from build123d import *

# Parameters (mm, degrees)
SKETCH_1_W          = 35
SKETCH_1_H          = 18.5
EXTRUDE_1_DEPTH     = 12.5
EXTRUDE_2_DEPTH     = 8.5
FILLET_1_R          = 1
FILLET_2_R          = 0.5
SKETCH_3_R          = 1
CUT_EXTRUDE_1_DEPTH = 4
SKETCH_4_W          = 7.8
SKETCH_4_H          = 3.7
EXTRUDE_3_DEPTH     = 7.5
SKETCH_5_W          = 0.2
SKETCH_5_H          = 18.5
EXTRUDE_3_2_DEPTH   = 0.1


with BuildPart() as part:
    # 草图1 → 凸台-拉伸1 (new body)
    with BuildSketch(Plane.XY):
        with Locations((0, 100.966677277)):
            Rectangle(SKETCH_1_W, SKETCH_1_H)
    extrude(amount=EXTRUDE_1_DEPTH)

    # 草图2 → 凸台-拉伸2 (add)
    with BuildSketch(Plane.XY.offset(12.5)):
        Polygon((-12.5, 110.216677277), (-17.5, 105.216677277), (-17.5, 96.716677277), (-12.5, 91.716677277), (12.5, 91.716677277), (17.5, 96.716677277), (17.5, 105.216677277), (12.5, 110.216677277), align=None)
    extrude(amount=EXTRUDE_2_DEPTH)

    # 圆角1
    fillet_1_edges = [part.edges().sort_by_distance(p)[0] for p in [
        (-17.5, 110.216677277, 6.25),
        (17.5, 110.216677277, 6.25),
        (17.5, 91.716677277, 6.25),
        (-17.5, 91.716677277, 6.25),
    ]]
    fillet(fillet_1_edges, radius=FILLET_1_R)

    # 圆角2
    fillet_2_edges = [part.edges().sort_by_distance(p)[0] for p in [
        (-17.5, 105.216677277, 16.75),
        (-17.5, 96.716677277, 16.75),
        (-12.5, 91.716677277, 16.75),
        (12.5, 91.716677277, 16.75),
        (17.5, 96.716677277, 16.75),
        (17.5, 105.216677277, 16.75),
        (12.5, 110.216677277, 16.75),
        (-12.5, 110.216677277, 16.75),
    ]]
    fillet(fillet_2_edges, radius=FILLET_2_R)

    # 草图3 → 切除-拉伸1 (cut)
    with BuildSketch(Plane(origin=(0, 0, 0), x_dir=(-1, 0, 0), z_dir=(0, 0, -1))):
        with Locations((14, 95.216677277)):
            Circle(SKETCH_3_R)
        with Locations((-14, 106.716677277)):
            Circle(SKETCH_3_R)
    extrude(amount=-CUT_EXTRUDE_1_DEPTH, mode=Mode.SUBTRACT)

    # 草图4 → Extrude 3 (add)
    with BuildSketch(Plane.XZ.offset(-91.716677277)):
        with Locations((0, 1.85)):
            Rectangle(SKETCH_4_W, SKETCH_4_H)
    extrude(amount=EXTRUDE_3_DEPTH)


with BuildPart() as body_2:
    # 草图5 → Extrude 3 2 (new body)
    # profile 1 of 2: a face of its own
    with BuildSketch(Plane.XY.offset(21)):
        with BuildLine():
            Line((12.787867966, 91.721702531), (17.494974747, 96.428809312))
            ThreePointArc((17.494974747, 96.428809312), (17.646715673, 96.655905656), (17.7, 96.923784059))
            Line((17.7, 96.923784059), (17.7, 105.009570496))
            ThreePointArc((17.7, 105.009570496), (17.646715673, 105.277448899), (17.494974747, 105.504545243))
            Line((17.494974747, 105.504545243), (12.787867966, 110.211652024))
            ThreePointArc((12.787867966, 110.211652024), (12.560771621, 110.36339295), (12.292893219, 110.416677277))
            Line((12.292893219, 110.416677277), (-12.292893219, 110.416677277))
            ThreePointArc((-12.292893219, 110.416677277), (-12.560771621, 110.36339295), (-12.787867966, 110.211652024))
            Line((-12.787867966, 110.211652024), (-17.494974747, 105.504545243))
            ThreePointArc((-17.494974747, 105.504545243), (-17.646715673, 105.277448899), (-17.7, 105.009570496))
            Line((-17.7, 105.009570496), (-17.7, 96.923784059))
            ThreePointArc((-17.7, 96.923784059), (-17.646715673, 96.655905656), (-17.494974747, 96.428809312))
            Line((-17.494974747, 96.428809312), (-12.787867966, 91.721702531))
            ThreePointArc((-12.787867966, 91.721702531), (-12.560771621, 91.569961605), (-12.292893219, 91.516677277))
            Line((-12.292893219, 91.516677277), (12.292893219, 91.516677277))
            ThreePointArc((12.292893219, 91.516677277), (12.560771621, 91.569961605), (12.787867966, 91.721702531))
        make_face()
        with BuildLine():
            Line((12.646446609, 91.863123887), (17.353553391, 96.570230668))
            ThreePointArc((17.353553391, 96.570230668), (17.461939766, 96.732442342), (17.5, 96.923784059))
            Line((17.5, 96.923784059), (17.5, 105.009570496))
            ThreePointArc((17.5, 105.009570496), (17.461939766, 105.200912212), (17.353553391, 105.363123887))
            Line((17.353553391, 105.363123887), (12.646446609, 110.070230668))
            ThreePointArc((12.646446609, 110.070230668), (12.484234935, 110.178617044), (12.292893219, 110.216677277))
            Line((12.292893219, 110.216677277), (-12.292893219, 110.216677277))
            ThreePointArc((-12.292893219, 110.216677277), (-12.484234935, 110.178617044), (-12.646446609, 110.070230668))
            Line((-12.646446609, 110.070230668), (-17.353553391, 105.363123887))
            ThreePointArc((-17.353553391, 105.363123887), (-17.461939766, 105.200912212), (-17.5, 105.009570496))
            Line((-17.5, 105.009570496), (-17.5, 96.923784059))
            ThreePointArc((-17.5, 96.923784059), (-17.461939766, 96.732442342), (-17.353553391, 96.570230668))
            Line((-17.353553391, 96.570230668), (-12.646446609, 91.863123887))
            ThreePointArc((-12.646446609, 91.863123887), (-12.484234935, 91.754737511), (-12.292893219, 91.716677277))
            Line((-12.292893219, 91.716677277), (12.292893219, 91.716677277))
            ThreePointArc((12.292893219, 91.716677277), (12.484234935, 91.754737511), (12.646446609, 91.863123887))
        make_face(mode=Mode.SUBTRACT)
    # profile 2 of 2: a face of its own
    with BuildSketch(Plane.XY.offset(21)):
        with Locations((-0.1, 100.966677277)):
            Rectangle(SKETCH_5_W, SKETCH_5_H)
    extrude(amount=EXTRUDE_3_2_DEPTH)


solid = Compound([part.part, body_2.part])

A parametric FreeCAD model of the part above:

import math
import FreeCAD as App
import Part
import Sketcher
Q = App.Units.Quantity


def edges_at(feature, points):
    """Names of the edges that pass closest to the given points."""
    edges = feature.Shape.Edges
    near = lambda p: min(range(len(edges)), key=lambda i: edges[i].distToShape(Part.Vertex(*p))[0])
    return sorted({f"Edge{near(p) + 1}" for p in points})

doc = App.newDocument("Part")
body = doc.addObject("PartDesign::Body", "Body")

# Sketch on XY plane
sketch1 = doc.addObject("Sketcher::SketchObject", "Sketch")
body.addObject(sketch1)
sketch1.AttachmentSupport = (doc.XY_Plane, [""])
sketch1.MapMode = "FlatFace"
sketch1.addGeometry([
    Part.LineSegment(App.Vector(-18, 110, 0), App.Vector(-18, 92, 0)),
    Part.LineSegment(App.Vector(-18, 92, 0), App.Vector(18, 92, 0)),
    Part.LineSegment(App.Vector(18, 92, 0), App.Vector(18, 110, 0)),
    Part.LineSegment(App.Vector(18, 110, 0), App.Vector(-18, 110, 0)),
], False)
sketch1.addConstraint([
    Sketcher.Constraint("Coincident", 0, 2, 1, 1),
    Sketcher.Constraint("Coincident", 1, 2, 2, 1),
    Sketcher.Constraint("Coincident", 2, 2, 3, 1),
    Sketcher.Constraint("Coincident", 3, 2, 0, 1),
    Sketcher.Constraint("Vertical", 0),
    Sketcher.Constraint("Horizontal", 1),
    Sketcher.Constraint("Vertical", 2),
    Sketcher.Constraint("Horizontal", 3),
    Sketcher.Constraint("DistanceX", 1, 1, 1, 2, Q("35 mm")),
    Sketcher.Constraint("DistanceY", 0, 2, 0, 1, Q("18.5 mm")),
    Sketcher.Constraint("DistanceX", 0, 2, -1, 1, Q("17.5 mm")),
    Sketcher.Constraint("DistanceY", -1, 1, 0, 2, Q("91.716677 mm")),
])
pad1 = doc.addObject("PartDesign::Pad", "Pad")
body.addObject(pad1)
pad1.Profile = sketch1
pad1.Length = 12.5

# Sketch on XY plane
sketch2 = doc.addObject("Sketcher::SketchObject", "Sketch001")
body.addObject(sketch2)
sketch2.AttachmentSupport = (doc.XY_Plane, [""])
sketch2.MapMode = "FlatFace"
sketch2.AttachmentOffset = App.Placement(App.Vector(0, 0, 12.5), App.Rotation())
sketch2.addGeometry([
    Part.LineSegment(App.Vector(-12, 110, 0), App.Vector(-18, 105, 0)),  # 0
    Part.LineSegment(App.Vector(-18, 105, 0), App.Vector(-18, 97, 0)),  # 1
    Part.LineSegment(App.Vector(-18, 97, 0), App.Vector(-12, 92, 0)),  # 2
    Part.LineSegment(App.Vector(-12, 92, 0), App.Vector(12, 92, 0)),  # 3
    Part.LineSegment(App.Vector(12, 92, 0), App.Vector(18, 97, 0)),  # 4
    Part.LineSegment(App.Vector(18, 97, 0), App.Vector(18, 105, 0)),  # 5
    Part.LineSegment(App.Vector(18, 105, 0), App.Vector(12, 110, 0)),  # 6
    Part.LineSegment(App.Vector(12, 110, 0), App.Vector(-12, 110, 0)),  # 7
], False)
sketch2.addConstraint([
    Sketcher.Constraint("Coincident", 0, 2, 1, 1),
    Sketcher.Constraint("Coincident", 1, 2, 2, 1),
    Sketcher.Constraint("Coincident", 2, 2, 3, 1),
    Sketcher.Constraint("Coincident", 3, 2, 4, 1),
    Sketcher.Constraint("Coincident", 4, 2, 5, 1),
    Sketcher.Constraint("Coincident", 5, 2, 6, 1),
    Sketcher.Constraint("Coincident", 6, 2, 7, 1),
    Sketcher.Constraint("Coincident", 7, 2, 0, 1),
    Sketcher.Constraint("Vertical", 1),
    Sketcher.Constraint("Horizontal", 3),
    Sketcher.Constraint("Vertical", 5),
    Sketcher.Constraint("Horizontal", 7),
    Sketcher.Constraint("Symmetric", 1, 2, 4, 2, -2),
    Sketcher.Constraint("Perpendicular", 0, 2),
    Sketcher.Constraint("Perpendicular", 2, 4),
    Sketcher.Constraint("Perpendicular", 4, 6),
    Sketcher.Constraint("Horizontal", 0, 2, 5, 2),
    Sketcher.Constraint("Vertical", 3, 2, 6, 2),
    Sketcher.Constraint("Vertical", 2, 2, 7, 2),
    Sketcher.Constraint("DistanceX", 3, 1, 3, 2, Q("25 mm")),
    Sketcher.Constraint("DistanceY", 1, 2, 1, 1, Q("8.5 mm")),
    Sketcher.Constraint("DistanceX", 1, 2, 2, 2, Q("5 mm")),
    Sketcher.Constraint("DistanceY", -1, 1, 0, 2, Q("105.216677 mm")),
])
pad2 = doc.addObject("PartDesign::Pad", "Pad001")
body.addObject(pad2)
pad2.Profile = sketch2
pad2.Length = 8.5
doc.recompute()

fillet = doc.addObject("PartDesign::Fillet", "Fillet")
body.addObject(fillet)
fillet.Base = (pad2, edges_at(pad2, [
    (-17.5, 110.217, 6.25),
    (17.5, 110.217, 6.25),
    (17.5, 91.717, 6.25),
    (-17.5, 91.717, 6.25),
]))
fillet.Radius = 1
doc.recompute()

fillet2 = doc.addObject("PartDesign::Fillet", "Fillet001")
body.addObject(fillet2)
fillet2.Base = (fillet, edges_at(fillet, [
    (-17.5, 105.217, 16.75),
    (-17.5, 96.717, 16.75),
    (-12.5, 91.717, 16.75),
    (12.5, 91.717, 16.75),
    (17.5, 96.717, 16.75),
    (17.5, 105.217, 16.75),
    (12.5, 110.217, 16.75),
    (-12.5, 110.217, 16.75),
]))
fillet2.Radius = 0.5

# Sketch on XY plane
sketch3 = doc.addObject("Sketcher::SketchObject", "Sketch002")
body.addObject(sketch3)
sketch3.AttachmentSupport = (doc.XY_Plane, [""])
sketch3.MapMode = "FlatFace"
sketch3.addGeometry([
    Part.Circle(App.Vector(-14, 95.2, 0), App.Vector(0, 0, 1), 1),
    Part.Circle(App.Vector(14, 106.7, 0), App.Vector(0, 0, 1), 1),
], False)
sketch3.addConstraint([
    Sketcher.Constraint("Equal", 0, 1),
    Sketcher.Constraint("Diameter", 0, Q("2 mm")),
    Sketcher.Constraint("DistanceX", 0, 3, -1, 1, Q("14 mm")),
    Sketcher.Constraint("DistanceX", -1, 1, 1, 3, Q("14 mm")),
    Sketcher.Constraint("DistanceY", 0, 3, 1, 3, Q("11.5 mm")),
    Sketcher.Constraint("DistanceY", -1, 1, 0, 3, Q("95.216677 mm")),
])
pocket1 = doc.addObject("PartDesign::Pocket", "Pocket")
body.addObject(pocket1)
pocket1.Profile = sketch3
pocket1.Length = 4
pocket1.Reversed = True

# Sketch on XZ plane
sketch4 = doc.addObject("Sketcher::SketchObject", "Sketch003")
body.addObject(sketch4)
sketch4.AttachmentSupport = (doc.XZ_Plane, [""])
sketch4.MapMode = "FlatFace"
sketch4.AttachmentOffset = App.Placement(App.Vector(0, 0, -91.716677), App.Rotation())
sketch4.addGeometry([
    Part.LineSegment(App.Vector(-3.9, 3.7, 0), App.Vector(-3.9, 0, 0)),
    Part.LineSegment(App.Vector(-3.9, 0, 0), App.Vector(3.9, 0, 0)),
    Part.LineSegment(App.Vector(3.9, 0, 0), App.Vector(3.9, 3.7, 0)),
    Part.LineSegment(App.Vector(3.9, 3.7, 0), App.Vector(-3.9, 3.7, 0)),
], False)
sketch4.addConstraint([
    Sketcher.Constraint("Coincident", 0, 2, 1, 1),
    Sketcher.Constraint("Coincident", 1, 2, 2, 1),
    Sketcher.Constraint("Coincident", 2, 2, 3, 1),
    Sketcher.Constraint("Coincident", 3, 2, 0, 1),
    Sketcher.Constraint("Vertical", 0),
    Sketcher.Constraint("Horizontal", 1),
    Sketcher.Constraint("Vertical", 2),
    Sketcher.Constraint("Horizontal", 3),
    Sketcher.Constraint("Symmetric", 0, 2, 1, 2, -1, 1),
    Sketcher.Constraint("DistanceX", 1, 1, 1, 2, Q("7.8 mm")),
    Sketcher.Constraint("DistanceY", 0, 2, 0, 1, Q("3.7 mm")),
])
pad3 = doc.addObject("PartDesign::Pad", "Pad002")
body.addObject(pad3)
pad3.Profile = sketch4
pad3.Length = 7.5
body2 = doc.addObject("PartDesign::Body", "Body001")

# Sketch on XY plane
sketch5 = doc.addObject("Sketcher::SketchObject", "Sketch004")
body2.addObject(sketch5)
sketch5.AttachmentSupport = (doc.getObject("XY_Plane001"), [""])
sketch5.MapMode = "FlatFace"
sketch5.AttachmentOffset = App.Placement(App.Vector(0, 0, 21), App.Rotation())
sketch5.addGeometry([
    Part.LineSegment(App.Vector(12.79, 91.72, 0), App.Vector(17.49, 96.43, 0)),  # 0
    Part.ArcOfCircle(Part.Circle(App.Vector(17, 96.92, 0), App.Vector(0, 0, 1), 0.7), math.radians(-45), math.radians(0)),  # 1
    Part.LineSegment(App.Vector(17.7, 96.92, 0), App.Vector(17.7, 105.01, 0)),  # 2
    Part.ArcOfCircle(Part.Circle(App.Vector(17, 105.01, 0), App.Vector(0, 0, 1), 0.7), math.radians(0), math.radians(45)),  # 3
    Part.LineSegment(App.Vector(17.49, 105.5, 0), App.Vector(12.79, 110.21, 0)),  # 4
    Part.ArcOfCircle(Part.Circle(App.Vector(12.29, 109.72, 0), App.Vector(0, 0, 1), 0.7), math.radians(45), math.radians(90)),  # 5
    Part.LineSegment(App.Vector(12.29, 110.42, 0), App.Vector(-12.29, 110.42, 0)),  # 6
    Part.ArcOfCircle(Part.Circle(App.Vector(-12.29, 109.72, 0), App.Vector(0, 0, 1), 0.7), math.radians(90), math.radians(135)),  # 7
    Part.LineSegment(App.Vector(-12.79, 110.21, 0), App.Vector(-17.49, 105.5, 0)),  # 8
    Part.ArcOfCircle(Part.Circle(App.Vector(-17, 105.01, 0), App.Vector(0, 0, 1), 0.7), math.radians(135), math.radians(180)),  # 9
    Part.LineSegment(App.Vector(-17.7, 105.01, 0), App.Vector(-17.7, 96.92, 0)),  # 10
    Part.ArcOfCircle(Part.Circle(App.Vector(-17, 96.92, 0), App.Vector(0, 0, 1), 0.7), math.radians(180), math.radians(225)),  # 11
    Part.LineSegment(App.Vector(-17.49, 96.43, 0), App.Vector(-12.79, 91.72, 0)),  # 12
    Part.ArcOfCircle(Part.Circle(App.Vector(-12.29, 92.22, 0), App.Vector(0, 0, 1), 0.7), math.radians(-135), math.radians(-90)),  # 13
    Part.LineSegment(App.Vector(-12.29, 91.52, 0), App.Vector(12.29, 91.52, 0)),  # 14
    Part.ArcOfCircle(Part.Circle(App.Vector(12.29, 92.22, 0), App.Vector(0, 0, 1), 0.7), math.radians(-90), math.radians(-45)),  # 15
    Part.LineSegment(App.Vector(17.35, 96.57, 0), App.Vector(12.65, 91.86, 0)),  # 16
    Part.ArcOfCircle(Part.Circle(App.Vector(12.29, 92.22, 0), App.Vector(0, 0, 1), 0.5), math.radians(-90), math.radians(-45)),  # 17
    Part.LineSegment(App.Vector(12.29, 91.72, 0), App.Vector(0, 91.72, 0)),  # 18
    Part.LineSegment(App.Vector(0, 91.72, 0), App.Vector(0, 110.22, 0)),  # 19
    Part.LineSegment(App.Vector(0, 110.22, 0), App.Vector(12.29, 110.22, 0)),  # 20
    Part.ArcOfCircle(Part.Circle(App.Vector(12.29, 109.72, 0), App.Vector(0, 0, 1), 0.5), math.radians(45), math.radians(90)),  # 21
    Part.LineSegment(App.Vector(12.65, 110.07, 0), App.Vector(17.35, 105.36, 0)),  # 22
    Part.ArcOfCircle(Part.Circle(App.Vector(17, 105.01, 0), App.Vector(0, 0, 1), 0.5), math.radians(0), math.radians(45)),  # 23
    Part.LineSegment(App.Vector(17.5, 105.01, 0), App.Vector(17.5, 96.92, 0)),  # 24
    Part.ArcOfCircle(Part.Circle(App.Vector(17, 96.92, 0), App.Vector(0, 0, 1), 0.5), math.radians(-45), math.radians(0)),  # 25
    Part.LineSegment(App.Vector(-12.29, 110.22, 0), App.Vector(-0.2, 110.22, 0)),  # 26
    Part.LineSegment(App.Vector(-0.2, 110.22, 0), App.Vector(-0.2, 91.72, 0)),  # 27
    Part.LineSegment(App.Vector(-0.2, 91.72, 0), App.Vector(-12.29, 91.72, 0)),  # 28
    Part.ArcOfCircle(Part.Circle(App.Vector(-12.29, 92.22, 0), App.Vector(0, 0, 1), 0.5), math.radians(-135), math.radians(-90)),  # 29
    Part.LineSegment(App.Vector(-12.65, 91.86, 0), App.Vector(-17.35, 96.57, 0)),  # 30
    Part.ArcOfCircle(Part.Circle(App.Vector(-17, 96.92, 0), App.Vector(0, 0, 1), 0.5), math.radians(180), math.radians(225)),  # 31
    Part.LineSegment(App.Vector(-17.5, 96.92, 0), App.Vector(-17.5, 105.01, 0)),  # 32
    Part.ArcOfCircle(Part.Circle(App.Vector(-17, 105.01, 0), App.Vector(0, 0, 1), 0.5), math.radians(135), math.radians(180)),  # 33
    Part.LineSegment(App.Vector(-17.35, 105.36, 0), App.Vector(-12.65, 110.07, 0)),  # 34
    Part.ArcOfCircle(Part.Circle(App.Vector(-12.29, 109.72, 0), App.Vector(0, 0, 1), 0.5), math.radians(90), math.radians(135)),  # 35
], False)
sketch5.addConstraint([
    Sketcher.Constraint("Tangent", 0, 2, 1, 1),
    Sketcher.Constraint("Tangent", 1, 2, 2, 1),
    Sketcher.Constraint("Tangent", 2, 2, 3, 1),
    Sketcher.Constraint("Tangent", 3, 2, 4, 1),
    Sketcher.Constraint("Tangent", 4, 2, 5, 1),
    Sketcher.Constraint("Tangent", 5, 2, 6, 1),
    Sketcher.Constraint("Tangent", 6, 2, 7, 1),
    Sketcher.Constraint("Tangent", 7, 2, 8, 1),
    Sketcher.Constraint("Tangent", 8, 2, 9, 1),
    Sketcher.Constraint("Tangent", 9, 2, 10, 1),
    Sketcher.Constraint("Tangent", 10, 2, 11, 1),
    Sketcher.Constraint("Tangent", 11, 2, 12, 1),
    Sketcher.Constraint("Tangent", 12, 2, 13, 1),
    Sketcher.Constraint("Tangent", 13, 2, 14, 1),
    Sketcher.Constraint("Tangent", 14, 2, 15, 1),
    Sketcher.Constraint("Tangent", 15, 2, 0, 1),
    Sketcher.Constraint("Tangent", 16, 2, 17, 2),
    Sketcher.Constraint("Tangent", 17, 1, 18, 1),
    Sketcher.Constraint("Coincident", 18, 2, 19, 1),
    Sketcher.Constraint("Coincident", 19, 2, 20, 1),
    Sketcher.Constraint("Tangent", 20, 2, 21, 2),
    Sketcher.Constraint("Tangent", 21, 1, 22, 1),
    Sketcher.Constraint("Tangent", 22, 2, 23, 2),
    Sketcher.Constraint("Tangent", 23, 1, 24, 1),
    Sketcher.Constraint("Tangent", 24, 2, 25, 2),
    Sketcher.Constraint("Tangent", 25, 1, 16, 1),
    Sketcher.Constraint("Coincident", 26, 2, 27, 1),
    Sketcher.Constraint("Coincident", 27, 2, 28, 1),
    Sketcher.Constraint("Tangent", 28, 2, 29, 2),
    Sketcher.Constraint("Tangent", 29, 1, 30, 1),
    Sketcher.Constraint("Tangent", 30, 2, 31, 2),
    Sketcher.Constraint("Tangent", 31, 1, 32, 1),
    Sketcher.Constraint("Tangent", 32, 2, 33, 2),
    Sketcher.Constraint("Tangent", 33, 1, 34, 1),
    Sketcher.Constraint("Tangent", 34, 2, 35, 2),
    Sketcher.Constraint("Tangent", 35, 1, 26, 1),
    Sketcher.Constraint("Vertical", 2),
    Sketcher.Constraint("Horizontal", 6),
    Sketcher.Constraint("Vertical", 10),
    Sketcher.Constraint("Horizontal", 14),
    Sketcher.Constraint("Horizontal", 18),
    Sketcher.Constraint("Vertical", 19),
    Sketcher.Constraint("Horizontal", 20),
    Sketcher.Constraint("Vertical", 24),
    Sketcher.Constraint("Horizontal", 26),
    Sketcher.Constraint("Vertical", 27),
    Sketcher.Constraint("Horizontal", 28),
    Sketcher.Constraint("Vertical", 32),
    Sketcher.Constraint("Coincident", 17, 3, 15, 3),
    Sketcher.Constraint("Coincident", 21, 3, 5, 3),
    Sketcher.Constraint("Coincident", 23, 3, 3, 3),
    Sketcher.Constraint("Coincident", 25, 3, 1, 3),
    Sketcher.Constraint("Coincident", 29, 3, 13, 3),
    Sketcher.Constraint("Coincident", 31, 3, 11, 3),
    Sketcher.Constraint("Coincident", 33, 3, 9, 3),
    Sketcher.Constraint("Coincident", 35, 3, 7, 3),
    Sketcher.Constraint("Equal", 1, 3),
    Sketcher.Constraint("Equal", 3, 5),
    Sketcher.Constraint("Equal", 5, 7),
    Sketcher.Constraint("Equal", 7, 9),
    Sketcher.Constraint("Equal", 9, 11),
    Sketcher.Constraint("Equal", 11, 13),
    Sketcher.Constraint("Equal", 13, 15),
    Sketcher.Constraint("Equal", 17, 21),
    Sketcher.Constraint("Equal", 21, 23),
    Sketcher.Constraint("Equal", 25, 29),
    Sketcher.Constraint("Equal", 29, 31),
    Sketcher.Constraint("Equal", 33, 35),
    Sketcher.Constraint("Symmetric", 3, 3, 9, 3, -2),
    Sketcher.Constraint("Symmetric", 0, 2, 11, 2, -2),
    Sketcher.Constraint("PointOnObject", 18, 2, -2),
    Sketcher.Constraint("Perpendicular", 0, 4),
    Sketcher.Constraint("Perpendicular", 4, 8),
    Sketcher.Constraint("Perpendicular", 8, 12),
    Sketcher.Constraint("Vertical", 7, 3, 13, 3),
    Sketcher.Constraint("Radius", 1, Q("0.7 mm")),
    Sketcher.Constraint("Radius", 17, Q("0.5 mm")),
    Sketcher.Constraint("DistanceY", 19, 1, 19, 2, Q("18.5 mm")),
    Sketcher.Constraint("DistanceX", -1, 1, 1, 3, Q("17 mm")),
    Sketcher.Constraint("DistanceX", 26, 2, -1, 1, Q("0.2 mm")),
    Sketcher.Constraint("DistanceX", 6, 2, 6, 1, Q("24.585786 mm")),
    Sketcher.Constraint("DistanceY", -1, 1, 3, 3, Q("105.00957 mm")),
])
pad4 = doc.addObject("PartDesign::Pad", "Pad003")
body2.addObject(pad4)
pad4.Profile = sketch5
pad4.Length = 0.1

doc.recompute()
